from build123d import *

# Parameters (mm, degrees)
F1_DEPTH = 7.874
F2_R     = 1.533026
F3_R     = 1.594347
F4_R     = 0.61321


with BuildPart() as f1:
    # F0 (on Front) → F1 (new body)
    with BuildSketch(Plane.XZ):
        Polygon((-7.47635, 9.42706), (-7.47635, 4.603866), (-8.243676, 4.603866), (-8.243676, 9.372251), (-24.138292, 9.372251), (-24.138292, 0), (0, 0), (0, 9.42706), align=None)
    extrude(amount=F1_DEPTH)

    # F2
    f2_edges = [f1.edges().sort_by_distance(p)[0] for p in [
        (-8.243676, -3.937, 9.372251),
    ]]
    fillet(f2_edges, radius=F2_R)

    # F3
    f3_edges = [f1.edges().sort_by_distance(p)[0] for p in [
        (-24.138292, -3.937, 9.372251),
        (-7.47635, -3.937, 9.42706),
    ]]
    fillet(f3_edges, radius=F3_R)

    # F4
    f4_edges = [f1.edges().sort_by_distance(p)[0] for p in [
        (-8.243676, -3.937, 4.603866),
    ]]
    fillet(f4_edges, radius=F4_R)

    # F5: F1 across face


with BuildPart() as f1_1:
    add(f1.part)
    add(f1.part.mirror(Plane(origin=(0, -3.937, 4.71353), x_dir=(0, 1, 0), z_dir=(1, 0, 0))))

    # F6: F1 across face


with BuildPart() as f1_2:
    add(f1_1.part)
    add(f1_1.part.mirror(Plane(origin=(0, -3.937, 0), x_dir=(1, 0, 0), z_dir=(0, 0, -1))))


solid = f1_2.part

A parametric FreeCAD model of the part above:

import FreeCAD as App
import Part
import Sketcher
from FreeCAD import Vector
Q = App.Units.Quantity


def edges_at(feature, points):
    """Names of the edges that pass closest to the given points."""
    edges = feature.Shape.Edges
    near = lambda p: min(range(len(edges)), key=lambda i: edges[i].distToShape(Part.Vertex(*p))[0])
    return sorted({f"Edge{near(p) + 1}" for p in points})

doc = App.newDocument("Part")
body = doc.addObject("PartDesign::Body", "Body")

# Sketch on XZ plane
sketch1 = body.newObject("Sketcher::SketchObject", "Sketch")
sketch1.AttachmentSupport = (doc.getObject("XZ_Plane"), [""])
sketch1.MapMode = "FlatFace"
sketch1.addGeometry([
    Part.LineSegment(Vector(-7.47635, 9.42706, 0), Vector(-7.47635, 4.603866, 0)),  # 0
    Part.LineSegment(Vector(-7.47635, 4.603866, 0), Vector(-8.243676, 4.603866, 0)),  # 1
    Part.LineSegment(Vector(-8.243676, 4.603866, 0), Vector(-8.243676, 9.372251, 0)),  # 2
    Part.LineSegment(Vector(-8.243676, 9.372251, 0), Vector(-24.138292, 9.372251, 0)),  # 3
    Part.LineSegment(Vector(-24.138292, 9.372251, 0), Vector(-24.138292, 0, 0)),  # 4
    Part.LineSegment(Vector(-24.138292, 0, 0), Vector(0, 0, 0)),  # 5
    Part.LineSegment(Vector(0, 0, 0), Vector(0, 9.42706, 0)),  # 6
    Part.LineSegment(Vector(0, 9.42706, 0), Vector(-7.47635, 9.42706, 0)),  # 7
], False)
sketch1.addConstraint([
    Sketcher.Constraint("Coincident", 0, 2, 1, 1),
    Sketcher.Constraint("Coincident", 1, 2, 2, 1),
    Sketcher.Constraint("Coincident", 2, 2, 3, 1),
    Sketcher.Constraint("Coincident", 3, 2, 4, 1),
    Sketcher.Constraint("Coincident", 4, 2, 5, 1),
    Sketcher.Constraint("Coincident", 5, 2, 6, 1),
    Sketcher.Constraint("Coincident", 6, 2, 7, 1),
    Sketcher.Constraint("Coincident", 7, 2, 0, 1),
    Sketcher.Constraint("Vertical", 0),
    Sketcher.Constraint("Horizontal", 1),
    Sketcher.Constraint("Vertical", 2),
    Sketcher.Constraint("Horizontal", 3),
    Sketcher.Constraint("Vertical", 4),
    Sketcher.Constraint("Horizontal", 5),
    Sketcher.Constraint("Vertical", 6),
    Sketcher.Constraint("Horizontal", 7),
    Sketcher.Constraint("Coincident", 5, 2, -1, 1),
    Sketcher.Constraint("DistanceX", 5, 1, 5, 2, Q("24.138292 mm")),
    Sketcher.Constraint("DistanceX", 7, 2, 7, 1, Q("7.47635 mm")),
    Sketcher.Constraint("DistanceY", 4, 2, 4, 1, Q("9.372251 mm")),
    Sketcher.Constraint("DistanceY", 6, 1, 6, 2, Q("9.42706 mm")),
    Sketcher.Constraint("DistanceX", 1, 2, 1, 1, Q("0.767326 mm")),
    Sketcher.Constraint("DistanceY", 0, 2, 0, 1, Q("4.823194 mm")),
])
pad1 = body.newObject("PartDesign::Pad", "Pad")
pad1.Profile = sketch1
pad1.Length = Q("0.31 in")
doc.recompute()

fillet = body.newObject("PartDesign::Fillet", "Fillet")
fillet.Base = (pad1, edges_at(pad1, [(-8.244, -3.937, 9.372)]))
fillet.Radius = 1.533026
doc.recompute()

fillet2 = body.newObject("PartDesign::Fillet", "Fillet001")
fillet2.Base = (fillet, edges_at(fillet, [(-24.138, -3.937, 9.372), (-7.476, -3.937, 9.427)]))
fillet2.Radius = 1.594347
doc.recompute()

fillet3 = body.newObject("PartDesign::Fillet", "Fillet002")
fillet3.Base = (fillet2, edges_at(fillet2, [(-8.244, -3.937, 4.604)]))
fillet3.Radius = 0.61321
body2 = doc.addObject("PartDesign::Body", "Body001")
doc.recompute()

body2.BaseFeature = body
doc.recompute()

mirroring = doc.addObject("Part::Mirroring", "Mirroring")
mirroring.Source = body
mirroring.Base = Vector(0, -3.937, 4.71353)
mirroring.Normal = Vector(1, 0, 0)
body3 = doc.addObject("PartDesign::Body", "Body002")
body3.BaseFeature = mirroring
boolean = body2.newObject("PartDesign::Boolean", "Boolean")
boolean.Type = "Fuse"
boolean.addObjects([body3])
doc.recompute()
body4 = doc.addObject("PartDesign::Body", "Body003")
doc.recompute()

body4.BaseFeature = body2
doc.recompute()

mirroring2 = doc.addObject("Part::Mirroring", "Mirroring001")
mirroring2.Source = body2
mirroring2.Base = Vector(0, -3.937, 0)
mirroring2.Normal = Vector(0, 0, -1)
body5 = doc.addObject("PartDesign::Body", "Body004")
body5.BaseFeature = mirroring2
boolean2 = body4.newObject("PartDesign::Boolean", "Boolean001")
boolean2.Type = "Fuse"
boolean2.addObjects([body5])
doc.recompute()
mirroring.Visibility = False
mirroring2.Visibility = False

doc.recompute()
